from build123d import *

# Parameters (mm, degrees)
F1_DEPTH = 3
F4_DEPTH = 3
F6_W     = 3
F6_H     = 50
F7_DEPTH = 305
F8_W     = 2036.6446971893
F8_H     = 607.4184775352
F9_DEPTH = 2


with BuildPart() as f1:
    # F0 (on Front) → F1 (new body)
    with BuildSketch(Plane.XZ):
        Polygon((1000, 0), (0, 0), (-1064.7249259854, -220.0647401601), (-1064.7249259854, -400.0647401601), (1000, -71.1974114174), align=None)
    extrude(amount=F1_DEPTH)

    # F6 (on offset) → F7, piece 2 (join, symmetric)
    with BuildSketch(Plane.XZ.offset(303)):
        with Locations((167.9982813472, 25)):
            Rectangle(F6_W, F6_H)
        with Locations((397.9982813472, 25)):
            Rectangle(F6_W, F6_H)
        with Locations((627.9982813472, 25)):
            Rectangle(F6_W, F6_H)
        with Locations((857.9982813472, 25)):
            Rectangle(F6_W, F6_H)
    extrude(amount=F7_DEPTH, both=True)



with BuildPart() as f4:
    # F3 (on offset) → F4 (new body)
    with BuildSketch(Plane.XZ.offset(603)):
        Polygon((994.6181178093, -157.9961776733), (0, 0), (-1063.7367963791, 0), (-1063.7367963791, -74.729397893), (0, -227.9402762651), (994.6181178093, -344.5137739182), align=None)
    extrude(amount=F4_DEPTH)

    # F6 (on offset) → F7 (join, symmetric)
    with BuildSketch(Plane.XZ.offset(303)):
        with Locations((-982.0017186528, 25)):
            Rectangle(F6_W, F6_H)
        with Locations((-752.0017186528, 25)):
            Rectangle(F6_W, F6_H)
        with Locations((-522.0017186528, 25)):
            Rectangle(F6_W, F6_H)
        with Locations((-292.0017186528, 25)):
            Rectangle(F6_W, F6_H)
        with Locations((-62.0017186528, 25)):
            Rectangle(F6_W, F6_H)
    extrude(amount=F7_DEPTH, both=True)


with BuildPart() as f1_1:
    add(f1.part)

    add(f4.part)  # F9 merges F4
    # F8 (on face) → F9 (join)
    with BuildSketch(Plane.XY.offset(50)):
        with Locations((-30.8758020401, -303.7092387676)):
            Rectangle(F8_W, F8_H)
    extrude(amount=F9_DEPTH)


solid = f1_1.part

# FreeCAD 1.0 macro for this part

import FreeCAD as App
import Part
import Sketcher
from FreeCAD import Vector
Q = App.Units.Quantity

doc = App.newDocument("Part")
body = doc.addObject("PartDesign::Body", "Body")

# Sketch on XZ plane
sketch1 = body.newObject("Sketcher::SketchObject", "Sketch")
sketch1.AttachmentSupport = (doc.getObject("XZ_Plane"), [""])
sketch1.MapMode = "FlatFace"
sketch1.addGeometry([
    Part.LineSegment(Vector(1000, 0, 0), Vector(0, 0, 0)),  # 0
    Part.LineSegment(Vector(0, 0, 0), Vector(-1065, -220, 0)),  # 1
    Part.LineSegment(Vector(-1065, -220, 0), Vector(-1065, -400, 0)),  # 2
    Part.LineSegment(Vector(-1065, -400, 0), Vector(1000, -71, 0)),  # 3
    Part.LineSegment(Vector(1000, -71, 0), Vector(1000, 0, 0)),  # 4
], False)
sketch1.addConstraint([
    Sketcher.Constraint("Coincident", 0, 2, 1, 1),
    Sketcher.Constraint("Coincident", 1, 2, 2, 1),
    Sketcher.Constraint("Coincident", 2, 2, 3, 1),
    Sketcher.Constraint("Coincident", 3, 2, 4, 1),
    Sketcher.Constraint("Coincident", 4, 2, 0, 1),
    Sketcher.Constraint("Horizontal", 0),
    Sketcher.Constraint("Vertical", 2),
    Sketcher.Constraint("Vertical", 4),
    Sketcher.Constraint("Coincident", 0, 2, -1, 1),
    Sketcher.Constraint("DistanceX", 0, 2, 0, 1, Q("1000 mm")),
    Sketcher.Constraint("DistanceY", 2, 2, 2, 1, Q("180 mm")),
    Sketcher.Constraint("Angle", 3, Q("9.049993 deg")),
    Sketcher.Constraint("DistanceY", 4, 1, 4, 2, Q("71.197411 mm")),
    Sketcher.Constraint("Distance", 1, Q("1087.229349 mm")),
])
pad1 = body.newObject("PartDesign::Pad", "Pad")
pad1.Profile = sketch1
pad1.Length = 3

# Sketch on XZ plane
sketch2 = body.newObject("Sketcher::SketchObject", "Sketch001")
sketch2.AttachmentSupport = (doc.getObject("XZ_Plane"), [""])
sketch2.MapMode = "FlatFace"
sketch2.AttachmentOffset = App.Placement(Vector(0, 0, 303), App.Rotation())
sketch2.addGeometry([
    Part.LineSegment(Vector(166.5, 50, 0), Vector(166.5, 0, 0)),  # 0
    Part.LineSegment(Vector(166.5, 0, 0), Vector(169.5, 0, 0)),  # 1
    Part.LineSegment(Vector(169.5, 0, 0), Vector(169.5, 50, 0)),  # 2
    Part.LineSegment(Vector(169.5, 50, 0), Vector(166.5, 50, 0)),  # 3
    Part.LineSegment(Vector(396.5, 50, 0), Vector(396.5, 0, 0)),  # 4
    Part.LineSegment(Vector(396.5, 0, 0), Vector(399.5, 0, 0)),  # 5
    Part.LineSegment(Vector(399.5, 0, 0), Vector(399.5, 50, 0)),  # 6
    Part.LineSegment(Vector(399.5, 50, 0), Vector(396.5, 50, 0)),  # 7
    Part.LineSegment(Vector(626.5, 50, 0), Vector(626.5, 0, 0)),  # 8
    Part.LineSegment(Vector(626.5, 0, 0), Vector(629.5, 0, 0)),  # 9
    Part.LineSegment(Vector(629.5, 0, 0), Vector(629.5, 50, 0)),  # 10
    Part.LineSegment(Vector(629.5, 50, 0), Vector(626.5, 50, 0)),  # 11
    Part.LineSegment(Vector(856.5, 50, 0), Vector(856.5, 0, 0)),  # 12
    Part.LineSegment(Vector(856.5, 0, 0), Vector(859.5, 0, 0)),  # 13
    Part.LineSegment(Vector(859.5, 0, 0), Vector(859.5, 50, 0)),  # 14
    Part.LineSegment(Vector(859.5, 50, 0), Vector(856.5, 50, 0)),  # 15
], False)
sketch2.addConstraint([
    Sketcher.Constraint("Coincident", 0, 2, 1, 1),
    Sketcher.Constraint("Coincident", 1, 2, 2, 1),
    Sketcher.Constraint("Coincident", 2, 2, 3, 1),
    Sketcher.Constraint("Coincident", 3, 2, 0, 1),
    Sketcher.Constraint("Coincident", 4, 2, 5, 1),
    Sketcher.Constraint("Coincident", 5, 2, 6, 1),
    Sketcher.Constraint("Coincident", 6, 2, 7, 1),
    Sketcher.Constraint("Coincident", 7, 2, 4, 1),
    Sketcher.Constraint("Coincident", 8, 2, 9, 1),
    Sketcher.Constraint("Coincident", 9, 2, 10, 1),
    Sketcher.Constraint("Coincident", 10, 2, 11, 1),
    Sketcher.Constraint("Coincident", 11, 2, 8, 1),
    Sketcher.Constraint("Coincident", 12, 2, 13, 1),
    Sketcher.Constraint("Coincident", 13, 2, 14, 1),
    Sketcher.Constraint("Coincident", 14, 2, 15, 1),
    Sketcher.Constraint("Coincident", 15, 2, 12, 1),
    Sketcher.Constraint("Vertical", 0),
    Sketcher.Constraint("Horizontal", 1),
    Sketcher.Constraint("Vertical", 2),
    Sketcher.Constraint("Horizontal", 3),
    Sketcher.Constraint("Vertical", 4),
    Sketcher.Constraint("Horizontal", 5),
    Sketcher.Constraint("Vertical", 6),
    Sketcher.Constraint("Horizontal", 7),
    Sketcher.Constraint("Vertical", 8),
    Sketcher.Constraint("Horizontal", 9),
    Sketcher.Constraint("Vertical", 10),
    Sketcher.Constraint("Horizontal", 11),
    Sketcher.Constraint("Vertical", 12),
    Sketcher.Constraint("Horizontal", 13),
    Sketcher.Constraint("Vertical", 14),
    Sketcher.Constraint("Horizontal", 15),
    Sketcher.Constraint("PointOnObject", 0, 2, -1),
    Sketcher.Constraint("PointOnObject", 4, 2, -1),
    Sketcher.Constraint("PointOnObject", 8, 2, -1),
    Sketcher.Constraint("PointOnObject", 12, 2, -1),
    Sketcher.Constraint("Horizontal", 3, 2, 6, 2),
    Sketcher.Constraint("Horizontal", 7, 2, 10, 2),
    Sketcher.Constraint("Horizontal", 11, 2, 14, 2),
    Sketcher.Constraint("Equal", 3, 5),
    Sketcher.Constraint("Equal", 7, 9),
    Sketcher.Constraint("Equal", 11, 13),
    Sketcher.Constraint("DistanceX", 1, 1, 1, 2, Q("3 mm")),
    Sketcher.Constraint("DistanceY", 0, 2, 0, 1, Q("50 mm")),
    Sketcher.Constraint("DistanceX", 1, 2, 4, 2, Q("227 mm")),
    Sketcher.Constraint("DistanceX", 5, 2, 8, 2, Q("227 mm")),
    Sketcher.Constraint("DistanceX", 9, 2, 12, 2, Q("227 mm")),
    Sketcher.Constraint("DistanceX", -1, 1, 0, 2, Q("166.498281 mm")),
])
pad2 = body.newObject("PartDesign::Pad", "Pad001")
pad2.Profile = sketch2
pad2.Length = 610
pad2.Midplane = True
body2 = doc.addObject("PartDesign::Body", "Body001")

# Sketch on XZ plane
sketch3 = body2.newObject("Sketcher::SketchObject", "Sketch002")
sketch3.AttachmentSupport = (doc.getObject("XZ_Plane001"), [""])
sketch3.MapMode = "FlatFace"
sketch3.AttachmentOffset = App.Placement(Vector(0, 0, 603), App.Rotation())
sketch3.addGeometry([
    Part.LineSegment(Vector(995, -158, 0), Vector(0, 0, 0)),  # 0
    Part.LineSegment(Vector(0, 0, 0), Vector(-1064, 0, 0)),  # 1
    Part.LineSegment(Vector(-1064, 0, 0), Vector(-1064, -75, 0)),  # 2
    Part.LineSegment(Vector(-1064, -75, 0), Vector(0, -228, 0)),  # 3
    Part.LineSegment(Vector(0, -228, 0), Vector(995, -345, 0)),  # 4
    Part.LineSegment(Vector(995, -345, 0), Vector(995, -158, 0)),  # 5
], False)
sketch3.addConstraint([
    Sketcher.Constraint("Coincident", 0, 2, 1, 1),
    Sketcher.Constraint("Coincident", 1, 2, 2, 1),
    Sketcher.Constraint("Coincident", 2, 2, 3, 1),
    Sketcher.Constraint("Coincident", 3, 2, 4, 1),
    Sketcher.Constraint("Coincident", 4, 2, 5, 1),
    Sketcher.Constraint("Coincident", 5, 2, 0, 1),
    Sketcher.Constraint("Horizontal", 1),
    Sketcher.Constraint("Vertical", 2),
    Sketcher.Constraint("Vertical", 5),
    Sketcher.Constraint("Coincident", 0, 2, -1, 1),
    Sketcher.Constraint("PointOnObject", 3, 2, -2),
    Sketcher.Constraint("DistanceY", 3, 2, 5, 2, Q("69.944099 mm")),
    Sketcher.Constraint("Distance", 0, Q("1007.08887 mm")),
    Sketcher.Constraint("DistanceX", 1, 2, 1, 1, Q("1063.736796 mm")),
    Sketcher.Constraint("DistanceY", 2, 2, 2, 1, Q("74.729398 mm")),
    Sketcher.Constraint("DistanceY", 5, 1, 5, 2, Q("186.517596 mm")),
    Sketcher.Constraint("DistanceY", 3, 2, 2, 2, Q("153.210878 mm")),
])
pad3 = body2.newObject("PartDesign::Pad", "Pad002")
pad3.Profile = sketch3
pad3.Length = 3

# Sketch on XZ plane
sketch4 = body2.newObject("Sketcher::SketchObject", "Sketch003")
sketch4.AttachmentSupport = (doc.getObject("XZ_Plane001"), [""])
sketch4.MapMode = "FlatFace"
sketch4.AttachmentOffset = App.Placement(Vector(0, 0, 303), App.Rotation())
sketch4.addGeometry([
    Part.LineSegment(Vector(-983.5, 50, 0), Vector(-983.5, 0, 0)),  # 0
    Part.LineSegment(Vector(-983.5, 0, 0), Vector(-980.5, 0, 0)),  # 1
    Part.LineSegment(Vector(-980.5, 0, 0), Vector(-980.5, 50, 0)),  # 2
    Part.LineSegment(Vector(-980.5, 50, 0), Vector(-983.5, 50, 0)),  # 3
    Part.LineSegment(Vector(-753.5, 50, 0), Vector(-753.5, 0, 0)),  # 4
    Part.LineSegment(Vector(-753.5, 0, 0), Vector(-750.5, 0, 0)),  # 5
    Part.LineSegment(Vector(-750.5, 0, 0), Vector(-750.5, 50, 0)),  # 6
    Part.LineSegment(Vector(-750.5, 50, 0), Vector(-753.5, 50, 0)),  # 7
    Part.LineSegment(Vector(-523.5, 50, 0), Vector(-523.5, 0, 0)),  # 8
    Part.LineSegment(Vector(-523.5, 0, 0), Vector(-520.5, 0, 0)),  # 9
    Part.LineSegment(Vector(-520.5, 0, 0), Vector(-520.5, 50, 0)),  # 10
    Part.LineSegment(Vector(-520.5, 50, 0), Vector(-523.5, 50, 0)),  # 11
    Part.LineSegment(Vector(-293.5, 50, 0), Vector(-293.5, 0, 0)),  # 12
    Part.LineSegment(Vector(-293.5, 0, 0), Vector(-290.5, 0, 0)),  # 13
    Part.LineSegment(Vector(-290.5, 0, 0), Vector(-290.5, 50, 0)),  # 14
    Part.LineSegment(Vector(-290.5, 50, 0), Vector(-293.5, 50, 0)),  # 15
    Part.LineSegment(Vector(-63.5, 50, 0), Vector(-63.5, 0, 0)),  # 16
    Part.LineSegment(Vector(-63.5, 0, 0), Vector(-60.5, 0, 0)),  # 17
    Part.LineSegment(Vector(-60.5, 0, 0), Vector(-60.5, 50, 0)),  # 18
    Part.LineSegment(Vector(-60.5, 50, 0), Vector(-63.5, 50, 0)),  # 19
], False)
sketch4.addConstraint([
    Sketcher.Constraint("Coincident", 0, 2, 1, 1),
    Sketcher.Constraint("Coincident", 1, 2, 2, 1),
    Sketcher.Constraint("Coincident", 2, 2, 3, 1),
    Sketcher.Constraint("Coincident", 3, 2, 0, 1),
    Sketcher.Constraint("Coincident", 4, 2, 5, 1),
    Sketcher.Constraint("Coincident", 5, 2, 6, 1),
    Sketcher.Constraint("Coincident", 6, 2, 7, 1),
    Sketcher.Constraint("Coincident", 7, 2, 4, 1),
    Sketcher.Constraint("Coincident", 8, 2, 9, 1),
    Sketcher.Constraint("Coincident", 9, 2, 10, 1),
    Sketcher.Constraint("Coincident", 10, 2, 11, 1),
    Sketcher.Constraint("Coincident", 11, 2, 8, 1),
    Sketcher.Constraint("Coincident", 12, 2, 13, 1),
    Sketcher.Constraint("Coincident", 13, 2, 14, 1),
    Sketcher.Constraint("Coincident", 14, 2, 15, 1),
    Sketcher.Constraint("Coincident", 15, 2, 12, 1),
    Sketcher.Constraint("Coincident", 16, 2, 17, 1),
    Sketcher.Constraint("Coincident", 17, 2, 18, 1),
    Sketcher.Constraint("Coincident", 18, 2, 19, 1),
    Sketcher.Constraint("Coincident", 19, 2, 16, 1),
    Sketcher.Constraint("Vertical", 0),
    Sketcher.Constraint("Horizontal", 1),
    Sketcher.Constraint("Vertical", 2),
    Sketcher.Constraint("Horizontal", 3),
    Sketcher.Constraint("Vertical", 4),
    Sketcher.Constraint("Horizontal", 5),
    Sketcher.Constraint("Vertical", 6),
    Sketcher.Constraint("Horizontal", 7),
    Sketcher.Constraint("Vertical", 8),
    Sketcher.Constraint("Horizontal", 9),
    Sketcher.Constraint("Vertical", 10),
    Sketcher.Constraint("Horizontal", 11),
    Sketcher.Constraint("Vertical", 12),
    Sketcher.Constraint("Horizontal", 13),
    Sketcher.Constraint("Vertical", 14),
    Sketcher.Constraint("Horizontal", 15),
    Sketcher.Constraint("Vertical", 16),
    Sketcher.Constraint("Horizontal", 17),
    Sketcher.Constraint("Vertical", 18),
    Sketcher.Constraint("Horizontal", 19),
    Sketcher.Constraint("PointOnObject", 0, 2, -1),
    Sketcher.Constraint("PointOnObject", 4, 2, -1),
    Sketcher.Constraint("PointOnObject", 8, 2, -1),
    Sketcher.Constraint("PointOnObject", 12, 2, -1),
    Sketcher.Constraint("PointOnObject", 16, 2, -1),
    Sketcher.Constraint("Horizontal", 3, 2, 6, 2),
    Sketcher.Constraint("Horizontal", 7, 2, 10, 2),
    Sketcher.Constraint("Horizontal", 11, 2, 14, 2),
    Sketcher.Constraint("Horizontal", 15, 2, 18, 2),
    Sketcher.Constraint("Equal", 3, 5),
    Sketcher.Constraint("Equal", 7, 9),
    Sketcher.Constraint("Equal", 11, 13),
    Sketcher.Constraint("Equal", 15, 17),
    Sketcher.Constraint("DistanceX", 1, 1, 1, 2, Q("3 mm")),
    Sketcher.Constraint("DistanceY", 0, 2, 0, 1, Q("50 mm")),
    Sketcher.Constraint("DistanceX", 1, 2, 4, 2, Q("227 mm")),
    Sketcher.Constraint("DistanceX", 5, 2, 8, 2, Q("227 mm")),
    Sketcher.Constraint("DistanceX", 9, 2, 12, 2, Q("227 mm")),
    Sketcher.Constraint("DistanceX", 13, 2, 16, 2, Q("227 mm")),
    Sketcher.Constraint("DistanceX", 0, 2, -1, 1, Q("983.501719 mm")),
])
pad4 = body2.newObject("PartDesign::Pad", "Pad003")
pad4.Profile = sketch4
pad4.Length = 610
pad4.Midplane = True
body.AllowCompound = True
doc.recompute()

boolean = body.newObject("PartDesign::Boolean", "Boolean")
boolean.Type = "Fuse"
boolean.addObjects([body2])

# Sketch on XY plane
sketch5 = body.newObject("Sketcher::SketchObject", "Sketch004")
sketch5.AttachmentSupport = (doc.getObject("XY_Plane"), [""])
sketch5.MapMode = "FlatFace"
sketch5.AttachmentOffset = App.Placement(Vector(0, 0, 50), App.Rotation())
sketch5.addGeometry([
    Part.LineSegment(Vector(-1049, 0, 0), Vector(-1049, -607, 0)),
    Part.LineSegment(Vector(-1049, -607, 0), Vector(987, -607, 0)),
    Part.LineSegment(Vector(987, -607, 0), Vector(987, 0, 0)),
    Part.LineSegment(Vector(987, 0, 0), Vector(-1049, 0, 0)),
], False)
sketch5.addConstraint([
    Sketcher.Constraint("Coincident", 0, 2, 1, 1),
    Sketcher.Constraint("Coincident", 1, 2, 2, 1),
    Sketcher.Constraint("Coincident", 2, 2, 3, 1),
    Sketcher.Constraint("Coincident", 3, 2, 0, 1),
    Sketcher.Constraint("Vertical", 0),
    Sketcher.Constraint("Horizontal", 1),
    Sketcher.Constraint("Vertical", 2),
    Sketcher.Constraint("Horizontal", 3),
    Sketcher.Constraint("PointOnObject", 2, 2, -1),
    Sketcher.Constraint("DistanceX", 1, 1, 1, 2, Q("2036.644697 mm")),
    Sketcher.Constraint("DistanceY", 0, 2, 0, 1, Q("607.418478 mm")),
    Sketcher.Constraint("DistanceX", 0, 2, -1, 1, Q("1049.198151 mm")),
])
pad5 = body.newObject("PartDesign::Pad", "Pad004")
pad5.Profile = sketch5
pad5.Length = 2

doc.recompute()
